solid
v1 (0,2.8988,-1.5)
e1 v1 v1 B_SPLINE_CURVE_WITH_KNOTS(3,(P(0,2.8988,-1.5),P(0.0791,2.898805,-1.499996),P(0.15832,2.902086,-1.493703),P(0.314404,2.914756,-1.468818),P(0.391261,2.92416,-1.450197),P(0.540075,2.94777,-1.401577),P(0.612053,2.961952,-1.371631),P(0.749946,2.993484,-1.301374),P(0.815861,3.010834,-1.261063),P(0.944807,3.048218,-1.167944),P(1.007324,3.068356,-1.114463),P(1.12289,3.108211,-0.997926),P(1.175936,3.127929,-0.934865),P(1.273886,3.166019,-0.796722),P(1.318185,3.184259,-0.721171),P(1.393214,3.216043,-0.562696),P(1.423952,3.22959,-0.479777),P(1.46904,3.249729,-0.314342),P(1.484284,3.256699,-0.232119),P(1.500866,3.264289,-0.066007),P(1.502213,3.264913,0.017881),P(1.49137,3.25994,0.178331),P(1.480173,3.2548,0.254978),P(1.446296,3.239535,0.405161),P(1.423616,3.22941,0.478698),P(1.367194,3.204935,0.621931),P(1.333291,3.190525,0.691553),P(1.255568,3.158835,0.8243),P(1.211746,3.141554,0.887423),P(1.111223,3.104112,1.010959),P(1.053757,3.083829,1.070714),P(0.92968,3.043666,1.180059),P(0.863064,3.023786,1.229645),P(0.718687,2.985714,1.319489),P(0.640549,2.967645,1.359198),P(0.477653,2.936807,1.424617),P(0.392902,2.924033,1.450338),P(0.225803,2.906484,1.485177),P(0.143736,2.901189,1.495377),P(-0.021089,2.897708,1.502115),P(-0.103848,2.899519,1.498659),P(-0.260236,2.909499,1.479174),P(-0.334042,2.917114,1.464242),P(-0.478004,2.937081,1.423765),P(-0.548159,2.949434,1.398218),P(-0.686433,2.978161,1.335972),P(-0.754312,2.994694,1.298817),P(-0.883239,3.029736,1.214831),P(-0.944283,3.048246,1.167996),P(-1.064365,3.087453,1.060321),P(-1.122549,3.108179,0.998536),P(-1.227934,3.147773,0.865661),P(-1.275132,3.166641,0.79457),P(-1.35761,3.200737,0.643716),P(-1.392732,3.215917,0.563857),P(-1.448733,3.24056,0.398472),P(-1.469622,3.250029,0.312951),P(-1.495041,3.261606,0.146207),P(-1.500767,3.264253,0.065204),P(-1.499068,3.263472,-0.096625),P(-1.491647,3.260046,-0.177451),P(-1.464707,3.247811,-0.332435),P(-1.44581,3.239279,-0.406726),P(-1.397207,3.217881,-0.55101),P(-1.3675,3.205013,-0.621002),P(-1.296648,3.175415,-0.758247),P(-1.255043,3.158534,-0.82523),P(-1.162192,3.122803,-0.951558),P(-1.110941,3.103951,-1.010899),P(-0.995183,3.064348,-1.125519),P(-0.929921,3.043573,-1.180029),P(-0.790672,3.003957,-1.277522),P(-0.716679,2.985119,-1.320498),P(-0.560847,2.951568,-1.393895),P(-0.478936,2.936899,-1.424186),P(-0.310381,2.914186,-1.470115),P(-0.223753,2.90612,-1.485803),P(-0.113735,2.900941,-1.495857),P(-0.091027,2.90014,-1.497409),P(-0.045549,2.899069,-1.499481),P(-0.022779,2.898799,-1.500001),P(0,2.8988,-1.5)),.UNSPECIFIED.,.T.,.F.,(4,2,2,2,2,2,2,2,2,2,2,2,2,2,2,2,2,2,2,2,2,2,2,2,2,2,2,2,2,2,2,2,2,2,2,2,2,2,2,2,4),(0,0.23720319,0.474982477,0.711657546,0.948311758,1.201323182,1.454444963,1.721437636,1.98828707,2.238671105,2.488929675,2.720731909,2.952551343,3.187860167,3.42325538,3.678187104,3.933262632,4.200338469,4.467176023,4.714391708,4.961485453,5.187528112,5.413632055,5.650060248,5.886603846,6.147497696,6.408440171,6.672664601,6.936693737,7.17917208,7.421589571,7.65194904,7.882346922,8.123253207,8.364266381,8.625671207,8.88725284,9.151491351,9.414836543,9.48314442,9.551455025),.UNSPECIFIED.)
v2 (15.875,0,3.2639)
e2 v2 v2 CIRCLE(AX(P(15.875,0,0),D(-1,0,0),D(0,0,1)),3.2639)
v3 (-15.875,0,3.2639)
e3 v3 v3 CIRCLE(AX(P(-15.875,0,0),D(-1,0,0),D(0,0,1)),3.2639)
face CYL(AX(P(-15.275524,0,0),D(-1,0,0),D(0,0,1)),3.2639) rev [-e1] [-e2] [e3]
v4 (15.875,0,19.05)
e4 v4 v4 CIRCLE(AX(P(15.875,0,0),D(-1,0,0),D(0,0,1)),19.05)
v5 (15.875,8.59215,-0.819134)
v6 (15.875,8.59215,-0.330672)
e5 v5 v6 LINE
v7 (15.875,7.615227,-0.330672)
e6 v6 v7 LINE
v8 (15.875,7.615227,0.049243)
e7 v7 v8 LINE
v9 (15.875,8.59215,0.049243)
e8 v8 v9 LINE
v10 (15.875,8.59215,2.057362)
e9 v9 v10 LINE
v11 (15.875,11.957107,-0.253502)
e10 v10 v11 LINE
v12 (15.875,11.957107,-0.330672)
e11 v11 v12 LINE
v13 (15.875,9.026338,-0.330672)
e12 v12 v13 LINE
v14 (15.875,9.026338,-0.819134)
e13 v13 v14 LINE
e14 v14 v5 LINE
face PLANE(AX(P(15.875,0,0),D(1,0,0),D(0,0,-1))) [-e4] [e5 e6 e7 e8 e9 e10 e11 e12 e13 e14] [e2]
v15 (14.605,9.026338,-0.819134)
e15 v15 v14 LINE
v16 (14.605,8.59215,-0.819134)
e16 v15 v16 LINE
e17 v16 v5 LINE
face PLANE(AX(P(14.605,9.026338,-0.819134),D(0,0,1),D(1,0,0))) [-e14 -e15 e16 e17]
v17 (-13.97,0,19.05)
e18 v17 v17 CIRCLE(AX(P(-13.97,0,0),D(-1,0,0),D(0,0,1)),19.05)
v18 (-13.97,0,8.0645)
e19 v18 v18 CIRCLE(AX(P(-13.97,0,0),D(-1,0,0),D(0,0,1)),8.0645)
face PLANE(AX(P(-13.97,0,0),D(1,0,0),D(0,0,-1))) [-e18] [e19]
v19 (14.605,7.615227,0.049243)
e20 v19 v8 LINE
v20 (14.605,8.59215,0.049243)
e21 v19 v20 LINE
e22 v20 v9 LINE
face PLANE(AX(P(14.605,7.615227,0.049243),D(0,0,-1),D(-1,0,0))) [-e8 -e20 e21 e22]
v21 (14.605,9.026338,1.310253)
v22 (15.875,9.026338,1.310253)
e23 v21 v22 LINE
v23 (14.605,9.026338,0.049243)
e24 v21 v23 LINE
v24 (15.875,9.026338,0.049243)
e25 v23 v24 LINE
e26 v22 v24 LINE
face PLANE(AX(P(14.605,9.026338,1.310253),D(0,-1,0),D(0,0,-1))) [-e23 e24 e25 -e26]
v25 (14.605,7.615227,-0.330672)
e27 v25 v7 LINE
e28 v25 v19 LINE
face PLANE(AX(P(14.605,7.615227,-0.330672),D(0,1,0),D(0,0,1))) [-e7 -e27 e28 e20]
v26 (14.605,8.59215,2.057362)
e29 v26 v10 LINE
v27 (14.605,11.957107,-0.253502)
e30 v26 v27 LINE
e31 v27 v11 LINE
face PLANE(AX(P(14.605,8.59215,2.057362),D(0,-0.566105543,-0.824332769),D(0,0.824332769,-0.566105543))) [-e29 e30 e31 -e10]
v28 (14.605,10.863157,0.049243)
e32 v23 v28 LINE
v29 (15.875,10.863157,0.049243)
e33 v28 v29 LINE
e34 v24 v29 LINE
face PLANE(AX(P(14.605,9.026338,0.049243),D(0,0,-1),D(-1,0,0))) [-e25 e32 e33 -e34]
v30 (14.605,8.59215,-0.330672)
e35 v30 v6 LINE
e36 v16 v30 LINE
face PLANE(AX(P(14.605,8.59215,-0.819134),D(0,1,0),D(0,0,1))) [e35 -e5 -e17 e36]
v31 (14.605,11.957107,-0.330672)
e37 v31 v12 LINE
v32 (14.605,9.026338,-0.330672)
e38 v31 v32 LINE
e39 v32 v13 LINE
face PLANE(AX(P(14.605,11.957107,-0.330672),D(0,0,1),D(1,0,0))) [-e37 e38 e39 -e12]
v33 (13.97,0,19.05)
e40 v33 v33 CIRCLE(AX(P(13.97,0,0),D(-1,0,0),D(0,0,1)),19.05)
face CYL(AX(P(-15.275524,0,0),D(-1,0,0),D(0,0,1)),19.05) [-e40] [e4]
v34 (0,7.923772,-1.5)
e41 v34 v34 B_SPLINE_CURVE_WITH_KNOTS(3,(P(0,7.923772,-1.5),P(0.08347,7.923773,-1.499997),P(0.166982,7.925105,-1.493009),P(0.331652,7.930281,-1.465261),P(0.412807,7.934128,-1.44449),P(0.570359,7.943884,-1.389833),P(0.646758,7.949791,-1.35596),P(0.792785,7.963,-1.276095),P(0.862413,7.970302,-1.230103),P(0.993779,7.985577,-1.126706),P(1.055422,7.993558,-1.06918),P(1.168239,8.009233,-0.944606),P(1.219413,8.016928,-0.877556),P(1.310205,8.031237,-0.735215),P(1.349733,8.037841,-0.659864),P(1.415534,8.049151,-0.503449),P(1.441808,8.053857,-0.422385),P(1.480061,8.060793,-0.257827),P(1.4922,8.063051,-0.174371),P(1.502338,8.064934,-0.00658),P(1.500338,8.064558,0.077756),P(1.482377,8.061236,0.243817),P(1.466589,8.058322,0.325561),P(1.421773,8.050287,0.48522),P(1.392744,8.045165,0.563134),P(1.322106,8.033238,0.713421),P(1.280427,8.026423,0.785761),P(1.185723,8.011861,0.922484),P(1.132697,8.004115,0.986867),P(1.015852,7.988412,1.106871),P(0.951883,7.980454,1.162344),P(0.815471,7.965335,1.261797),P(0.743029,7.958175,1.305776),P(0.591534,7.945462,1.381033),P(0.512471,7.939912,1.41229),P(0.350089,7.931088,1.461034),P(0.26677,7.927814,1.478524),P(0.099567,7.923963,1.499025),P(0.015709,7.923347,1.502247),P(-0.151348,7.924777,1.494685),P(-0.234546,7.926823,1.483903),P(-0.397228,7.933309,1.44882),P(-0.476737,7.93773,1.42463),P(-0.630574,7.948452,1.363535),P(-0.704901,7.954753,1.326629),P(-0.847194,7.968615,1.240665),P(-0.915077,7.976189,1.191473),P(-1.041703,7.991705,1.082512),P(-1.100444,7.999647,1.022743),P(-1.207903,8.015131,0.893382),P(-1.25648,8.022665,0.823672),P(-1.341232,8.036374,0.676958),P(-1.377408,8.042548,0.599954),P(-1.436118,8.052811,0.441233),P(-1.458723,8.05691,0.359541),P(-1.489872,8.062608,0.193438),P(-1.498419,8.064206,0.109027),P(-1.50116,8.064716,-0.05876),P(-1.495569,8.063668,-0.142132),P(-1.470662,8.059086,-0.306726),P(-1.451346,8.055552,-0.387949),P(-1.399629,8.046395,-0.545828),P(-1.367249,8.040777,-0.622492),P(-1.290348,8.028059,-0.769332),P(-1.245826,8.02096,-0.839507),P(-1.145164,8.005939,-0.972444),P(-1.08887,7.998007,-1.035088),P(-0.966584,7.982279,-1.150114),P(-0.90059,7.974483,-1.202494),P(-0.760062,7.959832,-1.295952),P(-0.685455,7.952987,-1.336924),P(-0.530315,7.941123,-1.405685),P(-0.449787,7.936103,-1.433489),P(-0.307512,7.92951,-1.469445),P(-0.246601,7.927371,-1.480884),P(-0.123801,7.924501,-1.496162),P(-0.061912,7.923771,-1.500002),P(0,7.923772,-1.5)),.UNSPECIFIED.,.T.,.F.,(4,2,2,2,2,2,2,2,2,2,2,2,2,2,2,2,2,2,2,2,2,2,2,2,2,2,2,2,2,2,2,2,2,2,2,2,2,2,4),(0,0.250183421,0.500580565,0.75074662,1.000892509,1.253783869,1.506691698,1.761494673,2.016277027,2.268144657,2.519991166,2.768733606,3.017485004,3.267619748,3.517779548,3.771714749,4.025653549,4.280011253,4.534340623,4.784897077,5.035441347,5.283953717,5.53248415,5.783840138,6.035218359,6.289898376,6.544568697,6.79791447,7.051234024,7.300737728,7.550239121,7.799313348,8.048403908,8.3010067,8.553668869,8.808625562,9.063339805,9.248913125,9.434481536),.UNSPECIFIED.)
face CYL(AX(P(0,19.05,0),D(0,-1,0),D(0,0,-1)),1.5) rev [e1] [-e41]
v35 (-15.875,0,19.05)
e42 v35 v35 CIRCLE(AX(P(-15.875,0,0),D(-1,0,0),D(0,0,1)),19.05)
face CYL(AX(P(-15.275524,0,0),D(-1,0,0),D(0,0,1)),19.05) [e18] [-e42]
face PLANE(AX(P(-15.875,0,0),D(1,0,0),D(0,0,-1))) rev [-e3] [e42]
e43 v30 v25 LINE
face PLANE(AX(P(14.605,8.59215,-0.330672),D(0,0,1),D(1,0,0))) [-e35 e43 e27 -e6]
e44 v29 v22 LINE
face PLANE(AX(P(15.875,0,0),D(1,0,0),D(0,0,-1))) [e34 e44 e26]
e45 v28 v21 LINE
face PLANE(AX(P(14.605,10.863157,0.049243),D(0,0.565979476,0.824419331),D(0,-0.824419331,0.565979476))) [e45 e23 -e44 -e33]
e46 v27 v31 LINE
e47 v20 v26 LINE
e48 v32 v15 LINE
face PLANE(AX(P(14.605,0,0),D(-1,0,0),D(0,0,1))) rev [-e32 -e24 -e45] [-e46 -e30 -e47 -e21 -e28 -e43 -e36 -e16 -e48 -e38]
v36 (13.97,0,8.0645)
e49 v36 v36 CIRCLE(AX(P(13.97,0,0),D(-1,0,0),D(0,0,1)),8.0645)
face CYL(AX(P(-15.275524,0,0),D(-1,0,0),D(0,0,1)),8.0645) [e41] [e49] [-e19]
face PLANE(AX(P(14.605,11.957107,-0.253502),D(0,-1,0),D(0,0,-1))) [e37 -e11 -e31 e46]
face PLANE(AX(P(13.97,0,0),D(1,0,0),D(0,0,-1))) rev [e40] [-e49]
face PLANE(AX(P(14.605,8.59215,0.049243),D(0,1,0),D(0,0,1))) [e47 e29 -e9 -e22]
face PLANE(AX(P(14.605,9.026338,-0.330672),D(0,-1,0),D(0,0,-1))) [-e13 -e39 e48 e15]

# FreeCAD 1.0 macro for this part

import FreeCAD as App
import Part
import Sketcher
from FreeCAD import Vector
Q = App.Units.Quantity

doc = App.newDocument("Part")
body = doc.addObject("PartDesign::Body", "Body")

sketch1 = body.newObject("Sketcher::SketchObject", "Sketch")
sketch1.AttachmentSupport = (doc.getObject("XY_Plane"), [""])
sketch1.MapMode = "FlatFace"
sketch1.addGeometry([
    Part.LineSegment(Vector(15.9, 3.3, 0), Vector(15.9, 19.1, 0)),
    Part.LineSegment(Vector(15.9, 19.1, 0), Vector(14, 19.1, 0)),
    Part.LineSegment(Vector(14, 19.1, 0), Vector(14, 8.1, 0)),
    Part.LineSegment(Vector(14, 8.1, 0), Vector(-14, 8.1, 0)),
    Part.LineSegment(Vector(-14, 8.1, 0), Vector(-14, 19.1, 0)),
    Part.LineSegment(Vector(-14, 19.1, 0), Vector(-15.9, 19.1, 0)),
    Part.LineSegment(Vector(-15.9, 19.1, 0), Vector(-15.9, 3.3, 0)),
    Part.LineSegment(Vector(-15.9, 3.3, 0), Vector(15.9, 3.3, 0)),
], False)
sketch1.addConstraint([
    Sketcher.Constraint("Coincident", 0, 2, 1, 1),
    Sketcher.Constraint("Coincident", 1, 2, 2, 1),
    Sketcher.Constraint("Coincident", 2, 2, 3, 1),
    Sketcher.Constraint("Coincident", 3, 2, 4, 1),
    Sketcher.Constraint("Coincident", 4, 2, 5, 1),
    Sketcher.Constraint("Coincident", 5, 2, 6, 1),
    Sketcher.Constraint("Coincident", 6, 2, 7, 1),
    Sketcher.Constraint("Coincident", 7, 2, 0, 1),
    Sketcher.Constraint("Vertical", 0),
    Sketcher.Constraint("Horizontal", 1),
    Sketcher.Constraint("Vertical", 2),
    Sketcher.Constraint("Horizontal", 3),
    Sketcher.Constraint("Vertical", 4),
    Sketcher.Constraint("Horizontal", 5),
    Sketcher.Constraint("Vertical", 6),
    Sketcher.Constraint("Horizontal", 7),
    Sketcher.Constraint("Symmetric", 1, 2, 4, 2, -2),
    Sketcher.Constraint("Equal", 1, 5),
    Sketcher.Constraint("DistanceX", 3, 2, 3, 1, Q("1.1 in")),
    Sketcher.Constraint("DistanceX", 7, 1, 7, 2, Q("1.25 in")),
    Sketcher.Constraint("DistanceY", -1, 1, 0, 2, Q("0.75 in")),
    Sketcher.Constraint("DistanceY", 0, 1, 0, 2, Q("0.6215 in")),
    Sketcher.Constraint("DistanceY", 2, 2, 2, 1, Q("0.4325 in")),
])
revolution = body.newObject("PartDesign::Revolution", "Revolution")
revolution.Profile = sketch1
revolution.ReferenceAxis = (sketch1, ["H_Axis"])
revolution.Angle = 360

sketch2 = body.newObject("Sketcher::SketchObject", "Sketch001")
sketch2.AttachmentSupport = (doc.getObject("XZ_Plane"), [""])
sketch2.MapMode = "FlatFace"
sketch2.addGeometry(Part.Circle(Vector(0, 0, 0), Vector(0, 0, 1), 1.5), False)
sketch2.addConstraint([
    Sketcher.Constraint("Coincident", 0, 3, -1, 1),
    Sketcher.Constraint("Diameter", 0, 3.0),
])
pocket1 = body.newObject("PartDesign::Pocket", "Pocket")
pocket1.Profile = sketch2
pocket1.Type = "ThroughAll"

sketch3 = body.newObject("Sketcher::SketchObject", "Sketch002")
sketch3.AttachmentSupport = (doc.getObject("YZ_Plane"), [""])
sketch3.MapMode = "FlatFace"
sketch3.AttachmentOffset = App.Placement(Vector(0, 0, 0.625 * 25.4), App.Rotation())
sketch3.addGeometry([
    Part.LineSegment(Vector(11.96, -0.33, 0), Vector(11.96, -0.25, 0)),
    Part.LineSegment(Vector(11.96, -0.25, 0), Vector(8.59, 2.06, 0)),
    Part.LineSegment(Vector(8.59, 2.06, 0), Vector(8.59, 0.05, 0)),
    Part.LineSegment(Vector(8.59, 0.05, 0), Vector(7.62, 0.05, 0)),
    Part.LineSegment(Vector(7.62, 0.05, 0), Vector(7.62, -0.33, 0)),
    Part.LineSegment(Vector(7.62, -0.33, 0), Vector(8.59, -0.33, 0)),
    Part.LineSegment(Vector(8.59, -0.33, 0), Vector(8.59, -0.82, 0)),
    Part.LineSegment(Vector(8.59, -0.82, 0), Vector(9.03, -0.82, 0)),
    Part.LineSegment(Vector(9.03, -0.82, 0), Vector(9.03, -0.33, 0)),
    Part.LineSegment(Vector(9.03, -0.33, 0), Vector(11.96, -0.33, 0)),
    Part.LineSegment(Vector(9.03, 0.05, 0), Vector(9.03, 1.31, 0)),
    Part.LineSegment(Vector(9.03, 1.31, 0), Vector(10.86, 0.05, 0)),
    Part.LineSegment(Vector(10.86, 0.05, 0), Vector(9.03, 0.05, 0)),
], False)
sketch3.addConstraint([
    Sketcher.Constraint("Coincident", 0, 2, 1, 1),
    Sketcher.Constraint("Coincident", 1, 2, 2, 1),
    Sketcher.Constraint("Coincident", 2, 2, 3, 1),
    Sketcher.Constraint("Coincident", 3, 2, 4, 1),
    Sketcher.Constraint("Coincident", 4, 2, 5, 1),
    Sketcher.Constraint("Coincident", 5, 2, 6, 1),
    Sketcher.Constraint("Coincident", 6, 2, 7, 1),
    Sketcher.Constraint("Coincident", 7, 2, 8, 1),
    Sketcher.Constraint("Coincident", 8, 2, 9, 1),
    Sketcher.Constraint("Coincident", 9, 2, 0, 1),
    Sketcher.Constraint("Coincident", 10, 2, 11, 1),
    Sketcher.Constraint("Coincident", 11, 2, 12, 1),
    Sketcher.Constraint("Coincident", 12, 2, 10, 1),
    Sketcher.Constraint("Vertical", 0),
    Sketcher.Constraint("Vertical", 2),
    Sketcher.Constraint("Horizontal", 3),
    Sketcher.Constraint("Vertical", 4),
    Sketcher.Constraint("Horizontal", 5),
    Sketcher.Constraint("Vertical", 6),
    Sketcher.Constraint("Horizontal", 7),
    Sketcher.Constraint("Vertical", 8),
    Sketcher.Constraint("Horizontal", 9),
    Sketcher.Constraint("Vertical", 10),
    Sketcher.Constraint("Horizontal", 12),
    Sketcher.Constraint("Horizontal", 5, 2, 8, 2),
    Sketcher.Constraint("Horizontal", 3, 2, 11, 2),
    Sketcher.Constraint("Vertical", 2, 2, 5, 2),
    Sketcher.Constraint("Vertical", 8, 2, 10, 2),
    Sketcher.Constraint("DistanceX", 7, 1, 7, 2, 0.434188),
    Sketcher.Constraint("DistanceX", 9, 1, 9, 2, 2.930769),
    Sketcher.Constraint("DistanceX", 12, 2, 12, 1, 1.836819),
    Sketcher.Constraint("DistanceY", 0, 1, 0, 2, 0.07717),
    Sketcher.Constraint("DistanceY", 2, 2, 2, 1, 2.00812),
    Sketcher.Constraint("DistanceY", 6, 2, 6, 1, 0.488462),
    Sketcher.Constraint("DistanceY", 10, 1, 10, 2, 1.261011),
    Sketcher.Constraint("DistanceY", 0, 2, -1, 1, 0.253502),
    Sketcher.Constraint("DistanceX", 3, 2, 3, 1, 0.976923),
    Sketcher.Constraint("DistanceY", 4, 2, 4, 1, 0.379915),
    Sketcher.Constraint("DistanceX", -1, 1, 1, 2, 8.59215),
])
pocket2 = body.newObject("PartDesign::Pocket", "Pocket001")
pocket2.Profile = sketch3
pocket2.Length = Q("0.05 in")

doc.recompute()
